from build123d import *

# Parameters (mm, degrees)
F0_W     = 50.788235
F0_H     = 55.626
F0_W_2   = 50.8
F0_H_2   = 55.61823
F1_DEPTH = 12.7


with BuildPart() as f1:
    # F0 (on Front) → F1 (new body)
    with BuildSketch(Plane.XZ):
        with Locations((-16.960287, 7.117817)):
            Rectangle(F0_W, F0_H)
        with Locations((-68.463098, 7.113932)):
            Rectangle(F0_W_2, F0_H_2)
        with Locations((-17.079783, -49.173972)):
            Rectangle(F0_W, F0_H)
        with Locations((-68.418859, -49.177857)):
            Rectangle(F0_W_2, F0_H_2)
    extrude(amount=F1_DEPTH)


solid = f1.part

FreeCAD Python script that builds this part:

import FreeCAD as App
import Part
import Sketcher
from FreeCAD import Vector
Q = App.Units.Quantity


def add_polygon(sketch, points):
    """Adds a closed chain of lines whose ends are joined by coincident constraints."""
    first, n = sketch.GeometryCount, len(points)
    for a, b in zip(points, points[1:] + points[:1]):
        sketch.addGeometry(Part.LineSegment(App.Vector(*a, 0), App.Vector(*b, 0)), False)
    for i in range(n):
        sketch.addConstraint(Sketcher.Constraint("Coincident", first + i, 2, first + (i + 1) % n, 1))

doc = App.newDocument("Part")
body = doc.addObject("PartDesign::Body", "Body")
body.AllowCompound = True

sketch1 = doc.addObject("Sketcher::SketchObject", "Sketch")
body.addObject(sketch1)
sketch1.AttachmentSupport = (doc.XZ_Plane, [""])
sketch1.MapMode = "FlatFace"
add_polygon(sketch1, [(-42.354405, 34.930817), (-42.354405, -20.695183), (8.43383, -20.695183), (8.43383, 34.930817)])
add_polygon(sketch1, [(-93.863098, 34.923047), (-93.863098, -20.695183), (-43.063098, -20.695183), (-43.063098, 34.923047)])
add_polygon(sketch1, [(-42.4739, -21.360972), (-42.4739, -76.986972), (8.314334, -76.986972), (8.314334, -21.360972)])
add_polygon(sketch1, [(-93.818859, -21.368742), (-93.818859, -76.986972), (-43.018859, -76.986972), (-43.018859, -21.368742)])
sketch1.addConstraint([
    Sketcher.Constraint("Vertical", 0),
    Sketcher.Constraint("Horizontal", 1),
    Sketcher.Constraint("Vertical", 2),
    Sketcher.Constraint("Horizontal", 3),
    Sketcher.Constraint("Vertical", 4),
    Sketcher.Constraint("Horizontal", 5),
    Sketcher.Constraint("Vertical", 6),
    Sketcher.Constraint("Horizontal", 7),
    Sketcher.Constraint("Vertical", 8),
    Sketcher.Constraint("Horizontal", 9),
    Sketcher.Constraint("Vertical", 10),
    Sketcher.Constraint("Horizontal", 11),
    Sketcher.Constraint("Vertical", 12),
    Sketcher.Constraint("Horizontal", 13),
    Sketcher.Constraint("Vertical", 14),
    Sketcher.Constraint("Horizontal", 15),
    Sketcher.Constraint("Horizontal", 1, 2, 4, 2),
    Sketcher.Constraint("Horizontal", 9, 2, 12, 2),
    Sketcher.Constraint("Equal", 3, 9),
    Sketcher.Constraint("Equal", 7, 13),
    Sketcher.Constraint("Equal", 2, 8),
    Sketcher.Constraint("Equal", 6, 12),
    Sketcher.Constraint("DistanceX", 5, 1, 5, 2, Q("2 in")),
    Sketcher.Constraint("DistanceY", 0, 2, 0, 1, Q("2.19 in")),
    Sketcher.Constraint("DistanceY", 4, 2, 4, 1, 55.61823),
    Sketcher.Constraint("DistanceX", 8, 2, -1, 1, 42.4739),
    Sketcher.Constraint("DistanceX", 1, 1, 1, 2, 50.788235),
    Sketcher.Constraint("DistanceX", -1, 1, 1, 2, 8.43383),
    Sketcher.Constraint("DistanceY", 8, 2, -1, 1, 76.986972),
    Sketcher.Constraint("DistanceX", 12, 2, -1, 1, 93.818859),
    Sketcher.Constraint("DistanceX", 4, 2, 1, 2, 102.296928),
    Sketcher.Constraint("DistanceY", 8, 2, 0, 2, 56.291789),
])
pad1 = doc.addObject("PartDesign::Pad", "Pad")
body.addObject(pad1)
pad1.Profile = sketch1
pad1.Length = Q("0.5 in")

doc.recompute()
